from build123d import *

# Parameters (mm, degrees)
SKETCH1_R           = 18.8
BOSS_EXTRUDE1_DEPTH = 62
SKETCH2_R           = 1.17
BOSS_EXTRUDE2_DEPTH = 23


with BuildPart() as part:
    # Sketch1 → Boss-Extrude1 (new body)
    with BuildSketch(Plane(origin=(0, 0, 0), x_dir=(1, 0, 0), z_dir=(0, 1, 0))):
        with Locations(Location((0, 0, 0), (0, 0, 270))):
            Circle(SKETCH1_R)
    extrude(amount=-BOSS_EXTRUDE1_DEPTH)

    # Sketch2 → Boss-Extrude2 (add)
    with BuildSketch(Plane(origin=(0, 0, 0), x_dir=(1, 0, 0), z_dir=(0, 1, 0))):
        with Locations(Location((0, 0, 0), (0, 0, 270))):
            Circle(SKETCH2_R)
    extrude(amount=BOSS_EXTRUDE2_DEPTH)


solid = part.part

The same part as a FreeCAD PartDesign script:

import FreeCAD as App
import Part
import Sketcher

V = App.Vector
Q = App.Units.Quantity

doc = App.newDocument("Part")
body = doc.addObject("PartDesign::Body", "Body")

# Sketch on XZ plane
sketch1 = doc.addObject("Sketcher::SketchObject", "Sketch")
body.addObject(sketch1)
sketch1.AttachmentSupport = (doc.XZ_Plane, [""])
sketch1.MapMode = "FlatFace"
sketch1.addGeometry(Part.Circle(V(0, 0, 0), V(0, 0, 1), 18.8), False)
sketch1.addConstraint([
    Sketcher.Constraint("Coincident", 0, 3, -1, 1),
    Sketcher.Constraint("Diameter", 0, Q("37.6 mm")),
])
pad1 = doc.addObject("PartDesign::Pad", "Pad")
body.addObject(pad1)
pad1.Profile = sketch1
pad1.Length = 62

# Sketch on XZ plane
sketch2 = doc.addObject("Sketcher::SketchObject", "Sketch001")
body.addObject(sketch2)
sketch2.AttachmentSupport = (doc.XZ_Plane, [""])
sketch2.MapMode = "FlatFace"
sketch2.addGeometry(Part.Circle(V(0, 0, 0), V(0, 0, 1), 1.17), False)
sketch2.addConstraint([
    Sketcher.Constraint("Coincident", 0, 3, -1, 1),
    Sketcher.Constraint("Diameter", 0, Q("2.34 mm")),
])
pad2 = doc.addObject("PartDesign::Pad", "Pad001")
body.addObject(pad2)
pad2.Profile = sketch2
pad2.Length = 23
pad2.Reversed = True

doc.recompute()
